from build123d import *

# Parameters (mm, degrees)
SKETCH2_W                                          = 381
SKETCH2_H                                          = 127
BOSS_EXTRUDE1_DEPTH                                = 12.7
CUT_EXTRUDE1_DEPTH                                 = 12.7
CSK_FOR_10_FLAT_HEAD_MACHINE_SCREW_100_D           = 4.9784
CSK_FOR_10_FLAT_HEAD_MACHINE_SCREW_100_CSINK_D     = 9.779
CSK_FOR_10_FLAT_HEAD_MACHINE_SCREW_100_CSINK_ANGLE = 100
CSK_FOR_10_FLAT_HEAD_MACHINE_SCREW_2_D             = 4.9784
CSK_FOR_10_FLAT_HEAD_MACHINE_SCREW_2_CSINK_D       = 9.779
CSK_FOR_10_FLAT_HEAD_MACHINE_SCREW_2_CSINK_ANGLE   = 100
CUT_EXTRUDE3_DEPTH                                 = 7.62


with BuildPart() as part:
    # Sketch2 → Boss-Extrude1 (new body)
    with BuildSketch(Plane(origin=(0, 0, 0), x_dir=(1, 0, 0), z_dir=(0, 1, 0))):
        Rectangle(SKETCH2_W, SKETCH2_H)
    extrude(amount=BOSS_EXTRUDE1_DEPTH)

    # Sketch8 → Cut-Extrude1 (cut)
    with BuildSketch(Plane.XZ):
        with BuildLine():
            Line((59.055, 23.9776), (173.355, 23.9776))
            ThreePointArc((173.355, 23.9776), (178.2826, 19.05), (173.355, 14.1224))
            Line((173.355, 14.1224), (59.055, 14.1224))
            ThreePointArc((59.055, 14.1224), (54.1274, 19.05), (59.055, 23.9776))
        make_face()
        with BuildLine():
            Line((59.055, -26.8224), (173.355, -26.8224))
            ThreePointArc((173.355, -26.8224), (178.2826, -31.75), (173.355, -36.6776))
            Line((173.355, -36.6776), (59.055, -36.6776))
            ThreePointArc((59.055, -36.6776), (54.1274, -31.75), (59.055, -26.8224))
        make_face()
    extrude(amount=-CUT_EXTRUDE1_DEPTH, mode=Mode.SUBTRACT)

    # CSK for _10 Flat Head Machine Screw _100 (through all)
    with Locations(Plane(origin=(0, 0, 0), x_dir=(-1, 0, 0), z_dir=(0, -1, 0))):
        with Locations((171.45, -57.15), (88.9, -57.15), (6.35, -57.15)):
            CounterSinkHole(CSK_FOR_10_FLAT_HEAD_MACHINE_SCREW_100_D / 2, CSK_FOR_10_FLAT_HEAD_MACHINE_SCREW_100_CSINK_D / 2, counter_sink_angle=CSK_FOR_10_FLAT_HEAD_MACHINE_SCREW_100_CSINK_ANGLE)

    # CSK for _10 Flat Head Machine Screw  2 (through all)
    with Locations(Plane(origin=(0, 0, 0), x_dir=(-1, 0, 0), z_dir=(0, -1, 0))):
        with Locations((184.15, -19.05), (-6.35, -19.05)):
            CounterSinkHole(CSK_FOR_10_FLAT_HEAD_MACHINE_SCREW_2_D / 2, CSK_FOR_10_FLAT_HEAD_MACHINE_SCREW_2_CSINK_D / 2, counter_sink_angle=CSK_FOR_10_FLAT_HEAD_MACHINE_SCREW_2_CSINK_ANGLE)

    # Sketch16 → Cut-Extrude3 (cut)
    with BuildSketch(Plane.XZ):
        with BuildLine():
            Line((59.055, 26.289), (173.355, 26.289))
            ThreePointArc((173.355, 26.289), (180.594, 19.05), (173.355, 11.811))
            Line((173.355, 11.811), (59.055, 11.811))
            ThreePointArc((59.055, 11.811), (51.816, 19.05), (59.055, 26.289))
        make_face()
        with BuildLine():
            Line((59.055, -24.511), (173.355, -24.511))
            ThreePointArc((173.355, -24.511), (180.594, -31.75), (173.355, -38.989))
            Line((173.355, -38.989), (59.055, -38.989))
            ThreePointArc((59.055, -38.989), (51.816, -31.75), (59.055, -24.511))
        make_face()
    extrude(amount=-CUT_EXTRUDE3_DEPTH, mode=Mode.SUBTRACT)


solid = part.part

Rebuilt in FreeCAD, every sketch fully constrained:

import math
import FreeCAD as App
import Part
import Sketcher
from FreeCAD import Vector
Q = App.Units.Quantity

doc = App.newDocument("Part")
body = doc.addObject("PartDesign::Body", "Body")

# Sketch on XZ plane
sketch1 = body.newObject("Sketcher::SketchObject", "Sketch")
sketch1.AttachmentSupport = (doc.getObject("XZ_Plane"), [""])
sketch1.MapMode = "FlatFace"
sketch1.addGeometry([
    Part.LineSegment(Vector(-190, -64, 0), Vector(-190, 64, 0)),
    Part.LineSegment(Vector(-190, 64, 0), Vector(190, 64, 0)),
    Part.LineSegment(Vector(190, 64, 0), Vector(190, -64, 0)),
    Part.LineSegment(Vector(190, -64, 0), Vector(-190, -64, 0)),
], False)
sketch1.addConstraint([
    Sketcher.Constraint("Coincident", 0, 2, 1, 1),
    Sketcher.Constraint("Coincident", 1, 2, 2, 1),
    Sketcher.Constraint("Coincident", 2, 2, 3, 1),
    Sketcher.Constraint("Coincident", 3, 2, 0, 1),
    Sketcher.Constraint("Vertical", 0),
    Sketcher.Constraint("Horizontal", 1),
    Sketcher.Constraint("Vertical", 2),
    Sketcher.Constraint("Horizontal", 3),
    Sketcher.Constraint("Symmetric", 0, 2, 2, 2, -1, 1),
    Sketcher.Constraint("DistanceX", 1, 1, 1, 2, Q("15 in")),
    Sketcher.Constraint("DistanceY", 0, 1, 0, 2, Q("5 in")),
])
pad1 = body.newObject("PartDesign::Pad", "Pad")
pad1.Profile = sketch1
pad1.Length = Q("0.5 in")
pad1.Reversed = True

# Sketch on XZ plane
sketch2 = body.newObject("Sketcher::SketchObject", "Sketch001")
sketch2.AttachmentSupport = (doc.getObject("XZ_Plane"), [""])
sketch2.MapMode = "FlatFace"
sketch2.addGeometry([
    Part.LineSegment(Vector(173.4, 24, 0), Vector(59.1, 24, 0)),  # 0
    Part.ArcOfCircle(Part.Circle(Vector(59.1, 19.1, 0), Vector(0, 0, 1), 4.9), math.radians(90), math.radians(270)),  # 1
    Part.LineSegment(Vector(59.1, 14.1, 0), Vector(173.4, 14.1, 0)),  # 2
    Part.ArcOfCircle(Part.Circle(Vector(173.4, 19.1, 0), Vector(0, 0, 1), 4.9), math.radians(-90), math.radians(90)),  # 3
    Part.LineSegment(Vector(173.4, -26.8, 0), Vector(59.1, -26.8, 0)),  # 4
    Part.ArcOfCircle(Part.Circle(Vector(59.1, -31.8, 0), Vector(0, 0, 1), 4.9), math.radians(90), math.radians(270)),  # 5
    Part.LineSegment(Vector(59.1, -36.7, 0), Vector(173.4, -36.7, 0)),  # 6
    Part.ArcOfCircle(Part.Circle(Vector(173.4, -31.8, 0), Vector(0, 0, 1), 4.9), math.radians(-90), math.radians(90)),  # 7
], False)
sketch2.addConstraint([
    Sketcher.Constraint("Tangent", 0, 2, 1, 1),
    Sketcher.Constraint("Tangent", 1, 2, 2, 1),
    Sketcher.Constraint("Tangent", 2, 2, 3, 1),
    Sketcher.Constraint("Tangent", 3, 2, 0, 1),
    Sketcher.Constraint("Tangent", 4, 2, 5, 1),
    Sketcher.Constraint("Tangent", 5, 2, 6, 1),
    Sketcher.Constraint("Tangent", 6, 2, 7, 1),
    Sketcher.Constraint("Tangent", 7, 2, 4, 1),
    Sketcher.Constraint("Horizontal", 0),
    Sketcher.Constraint("Horizontal", 2),
    Sketcher.Constraint("Horizontal", 4),
    Sketcher.Constraint("Horizontal", 6),
    Sketcher.Constraint("Equal", 3, 5),
    Sketcher.Constraint("Vertical", 1, 3, 5, 3),
    Sketcher.Constraint("Vertical", 3, 3, 7, 3),
    Sketcher.Constraint("DistanceX", 0, 2, 0, 1, Q("4.5 in")),
    Sketcher.Constraint("Radius", 1, Q("0.194 in")),
    Sketcher.Constraint("DistanceY", 5, 3, 1, 3, Q("2 in")),
    Sketcher.Constraint("DistanceY", -1, 1, 1, 3, Q("0.75 in")),
    Sketcher.Constraint("DistanceX", -1, 1, 1, 3, Q("2.325 in")),
])
pocket1 = body.newObject("PartDesign::Pocket", "Pocket")
pocket1.Profile = sketch2
pocket1.Length = Q("0.5 in")

# Sketch on XZ plane
sketch3 = body.newObject("Sketcher::SketchObject", "Sketch002")
sketch3.AttachmentSupport = (doc.getObject("XZ_Plane"), [""])
sketch3.MapMode = "FlatFace"
sketch3.addGeometry([
    Part.Circle(Vector(-171.4, 57.1, 0), Vector(0, 0, 1), 2.5),
    Part.Circle(Vector(-88.9, 57.1, 0), Vector(0, 0, 1), 2.5),
    Part.Circle(Vector(-6.3, 57.1, 0), Vector(0, 0, 1), 2.5),
], False)
sketch3.addConstraint([
    Sketcher.Constraint("Equal", 0, 1),
    Sketcher.Constraint("Equal", 1, 2),
    Sketcher.Constraint("Horizontal", 0, 3, 1, 3),
    Sketcher.Constraint("Horizontal", 1, 3, 2, 3),
    Sketcher.Constraint("Diameter", 0, Q("0.196 in")),
    Sketcher.Constraint("DistanceX", 1, 3, -1, 1, Q("3.5 in")),
    Sketcher.Constraint("DistanceX", 0, 3, 2, 3, Q("6.5 in")),
    Sketcher.Constraint("DistanceX", 0, 3, -1, 1, Q("6.75 in")),
    Sketcher.Constraint("DistanceY", -1, 1, 0, 3, Q("2.25 in")),
])
doc.recompute()
hole = body.newObject("PartDesign::Hole", "Hole")
hole.Profile = sketch3
hole.ThreadType = "None"
hole.Diameter = Q("0.196 in")
hole.DepthType = "ThroughAll"
hole.HoleCutType = "Countersink"
hole.HoleCutDiameter = Q("0.385 in")
hole.HoleCutCountersinkAngle = 100

# Sketch on XZ plane
sketch4 = body.newObject("Sketcher::SketchObject", "Sketch003")
sketch4.AttachmentSupport = (doc.getObject("XZ_Plane"), [""])
sketch4.MapMode = "FlatFace"
sketch4.addGeometry([
    Part.Circle(Vector(-184.2, 19.1, 0), Vector(0, 0, 1), 2.5),
    Part.Circle(Vector(6.3, 19.1, 0), Vector(0, 0, 1), 2.5),
], False)
sketch4.addConstraint([
    Sketcher.Constraint("Equal", 0, 1),
    Sketcher.Constraint("Horizontal", 0, 3, 1, 3),
    Sketcher.Constraint("Diameter", 0, Q("0.196 in")),
    Sketcher.Constraint("DistanceX", 0, 3, 1, 3, Q("7.5 in")),
    Sketcher.Constraint("DistanceX", 0, 3, -1, 1, Q("7.25 in")),
    Sketcher.Constraint("DistanceY", -1, 1, 0, 3, Q("0.75 in")),
])
doc.recompute()
hole2 = body.newObject("PartDesign::Hole", "Hole001")
hole2.Profile = sketch4
hole2.ThreadType = "None"
hole2.Diameter = Q("0.196 in")
hole2.DepthType = "ThroughAll"
hole2.HoleCutType = "Countersink"
hole2.HoleCutDiameter = Q("0.385 in")
hole2.HoleCutCountersinkAngle = 100

# Sketch on XZ plane
sketch5 = body.newObject("Sketcher::SketchObject", "Sketch004")
sketch5.AttachmentSupport = (doc.getObject("XZ_Plane"), [""])
sketch5.MapMode = "FlatFace"
sketch5.addGeometry([
    Part.LineSegment(Vector(173, 26, 0), Vector(59, 26, 0)),  # 0
    Part.ArcOfCircle(Part.Circle(Vector(59, 19, 0), Vector(0, 0, 1), 7), math.radians(90), math.radians(270)),  # 1
    Part.LineSegment(Vector(59, 12, 0), Vector(173, 12, 0)),  # 2
    Part.ArcOfCircle(Part.Circle(Vector(173, 19, 0), Vector(0, 0, 1), 7), math.radians(-90), math.radians(90)),  # 3
    Part.LineSegment(Vector(173, -25, 0), Vector(59, -25, 0)),  # 4
    Part.ArcOfCircle(Part.Circle(Vector(59, -32, 0), Vector(0, 0, 1), 7), math.radians(90), math.radians(270)),  # 5
    Part.LineSegment(Vector(59, -39, 0), Vector(173, -39, 0)),  # 6
    Part.ArcOfCircle(Part.Circle(Vector(173, -32, 0), Vector(0, 0, 1), 7), math.radians(-90), math.radians(90)),  # 7
], False)
sketch5.addConstraint([
    Sketcher.Constraint("Tangent", 0, 2, 1, 1),
    Sketcher.Constraint("Tangent", 1, 2, 2, 1),
    Sketcher.Constraint("Tangent", 2, 2, 3, 1),
    Sketcher.Constraint("Tangent", 3, 2, 0, 1),
    Sketcher.Constraint("Tangent", 4, 2, 5, 1),
    Sketcher.Constraint("Tangent", 5, 2, 6, 1),
    Sketcher.Constraint("Tangent", 6, 2, 7, 1),
    Sketcher.Constraint("Tangent", 7, 2, 4, 1),
    Sketcher.Constraint("Horizontal", 0),
    Sketcher.Constraint("Horizontal", 2),
    Sketcher.Constraint("Horizontal", 4),
    Sketcher.Constraint("Horizontal", 6),
    Sketcher.Constraint("Equal", 3, 5),
    Sketcher.Constraint("Vertical", 1, 3, 5, 3),
    Sketcher.Constraint("Vertical", 3, 3, 7, 3),
    Sketcher.Constraint("DistanceX", 0, 2, 0, 1, Q("4.5 in")),
    Sketcher.Constraint("Radius", 1, Q("0.285 in")),
    Sketcher.Constraint("DistanceY", 5, 3, 1, 3, Q("2 in")),
    Sketcher.Constraint("DistanceY", -1, 1, 1, 3, Q("0.75 in")),
    Sketcher.Constraint("DistanceX", -1, 1, 1, 3, Q("2.325 in")),
])
pocket2 = body.newObject("PartDesign::Pocket", "Pocket001")
pocket2.Profile = sketch5
pocket2.Length = Q("0.3 in")

doc.recompute()
